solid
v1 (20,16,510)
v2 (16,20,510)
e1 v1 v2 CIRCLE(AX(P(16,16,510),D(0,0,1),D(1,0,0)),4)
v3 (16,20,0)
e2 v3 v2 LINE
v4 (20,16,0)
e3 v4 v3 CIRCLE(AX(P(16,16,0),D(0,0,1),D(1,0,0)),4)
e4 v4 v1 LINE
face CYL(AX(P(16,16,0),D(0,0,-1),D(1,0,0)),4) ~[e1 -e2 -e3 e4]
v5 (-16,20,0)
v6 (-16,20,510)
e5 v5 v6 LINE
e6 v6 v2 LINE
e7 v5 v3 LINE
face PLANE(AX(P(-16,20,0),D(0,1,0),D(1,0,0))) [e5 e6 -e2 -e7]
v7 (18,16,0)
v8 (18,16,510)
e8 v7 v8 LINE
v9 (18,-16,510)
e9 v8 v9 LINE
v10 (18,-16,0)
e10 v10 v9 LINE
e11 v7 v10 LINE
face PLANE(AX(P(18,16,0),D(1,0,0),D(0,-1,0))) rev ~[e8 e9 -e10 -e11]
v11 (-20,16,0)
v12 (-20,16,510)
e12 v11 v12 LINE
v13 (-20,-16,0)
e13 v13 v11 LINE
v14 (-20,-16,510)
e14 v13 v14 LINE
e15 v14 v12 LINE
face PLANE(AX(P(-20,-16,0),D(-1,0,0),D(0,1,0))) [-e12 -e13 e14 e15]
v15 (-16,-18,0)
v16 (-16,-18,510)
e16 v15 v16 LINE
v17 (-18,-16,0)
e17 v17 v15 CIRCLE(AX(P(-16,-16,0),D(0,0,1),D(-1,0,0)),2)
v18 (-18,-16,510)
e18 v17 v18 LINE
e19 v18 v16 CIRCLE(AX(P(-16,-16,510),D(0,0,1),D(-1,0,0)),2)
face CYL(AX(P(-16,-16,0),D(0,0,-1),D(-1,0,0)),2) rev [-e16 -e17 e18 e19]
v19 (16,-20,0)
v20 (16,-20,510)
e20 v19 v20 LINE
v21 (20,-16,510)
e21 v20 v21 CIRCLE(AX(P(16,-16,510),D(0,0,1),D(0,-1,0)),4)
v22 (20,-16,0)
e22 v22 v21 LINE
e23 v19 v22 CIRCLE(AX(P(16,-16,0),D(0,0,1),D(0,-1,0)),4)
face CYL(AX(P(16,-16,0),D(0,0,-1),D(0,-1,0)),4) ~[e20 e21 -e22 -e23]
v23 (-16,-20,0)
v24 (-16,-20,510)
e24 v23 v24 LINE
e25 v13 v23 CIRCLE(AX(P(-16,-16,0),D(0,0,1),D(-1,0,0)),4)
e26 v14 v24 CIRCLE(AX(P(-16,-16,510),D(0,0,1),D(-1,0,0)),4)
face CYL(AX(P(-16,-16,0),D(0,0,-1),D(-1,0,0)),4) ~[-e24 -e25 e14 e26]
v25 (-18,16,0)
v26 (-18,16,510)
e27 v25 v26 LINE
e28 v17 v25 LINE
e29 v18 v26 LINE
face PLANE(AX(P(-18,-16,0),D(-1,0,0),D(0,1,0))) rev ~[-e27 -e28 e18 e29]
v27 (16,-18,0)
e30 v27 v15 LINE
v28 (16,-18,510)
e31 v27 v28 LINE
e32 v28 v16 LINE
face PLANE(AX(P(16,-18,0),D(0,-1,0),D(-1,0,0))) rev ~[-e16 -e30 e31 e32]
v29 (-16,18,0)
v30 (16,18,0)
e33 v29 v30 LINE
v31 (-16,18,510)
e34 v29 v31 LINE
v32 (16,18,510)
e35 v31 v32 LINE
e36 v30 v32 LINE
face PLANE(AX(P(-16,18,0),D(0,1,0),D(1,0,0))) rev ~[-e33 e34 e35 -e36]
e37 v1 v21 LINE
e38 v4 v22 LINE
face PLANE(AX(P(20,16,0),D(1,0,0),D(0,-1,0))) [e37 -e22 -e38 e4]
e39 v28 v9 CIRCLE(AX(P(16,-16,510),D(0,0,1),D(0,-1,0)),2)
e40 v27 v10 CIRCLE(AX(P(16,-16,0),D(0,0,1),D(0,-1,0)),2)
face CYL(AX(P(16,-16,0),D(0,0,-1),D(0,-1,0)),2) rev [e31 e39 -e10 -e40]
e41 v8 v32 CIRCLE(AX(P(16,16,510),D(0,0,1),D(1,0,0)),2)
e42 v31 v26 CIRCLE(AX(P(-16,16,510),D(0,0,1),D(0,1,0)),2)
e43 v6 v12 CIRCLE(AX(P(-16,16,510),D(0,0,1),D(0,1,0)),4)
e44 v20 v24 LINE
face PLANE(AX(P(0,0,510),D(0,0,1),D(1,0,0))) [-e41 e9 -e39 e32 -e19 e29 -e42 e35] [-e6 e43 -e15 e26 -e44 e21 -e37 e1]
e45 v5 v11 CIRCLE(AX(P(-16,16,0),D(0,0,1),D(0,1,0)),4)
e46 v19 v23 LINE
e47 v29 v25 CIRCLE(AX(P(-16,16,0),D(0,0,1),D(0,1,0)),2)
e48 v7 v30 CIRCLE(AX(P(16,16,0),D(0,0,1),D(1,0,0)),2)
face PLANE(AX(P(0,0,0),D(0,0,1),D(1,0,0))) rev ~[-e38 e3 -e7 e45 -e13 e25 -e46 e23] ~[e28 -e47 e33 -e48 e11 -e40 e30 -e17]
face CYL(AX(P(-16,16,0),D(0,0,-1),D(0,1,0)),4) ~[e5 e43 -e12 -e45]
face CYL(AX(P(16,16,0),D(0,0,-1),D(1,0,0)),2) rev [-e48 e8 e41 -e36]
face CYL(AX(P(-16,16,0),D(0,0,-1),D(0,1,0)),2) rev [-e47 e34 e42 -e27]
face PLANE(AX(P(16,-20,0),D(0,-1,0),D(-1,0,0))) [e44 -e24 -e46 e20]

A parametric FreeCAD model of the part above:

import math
import FreeCAD as App
import Part
import Sketcher

doc = App.newDocument("Part")
params = doc.addObject("Spreadsheet::Sheet", "Params")
for row, (alias, value) in enumerate([
    ("sketch1_radius", "4 mm"),
    ("sketch1_radius2", "2 mm"),
    ("pad1_length", "510 mm"),
], start=1):
    params.set(f"A{row}", alias)
    params.set(f"B{row}", "=" + value)
    params.setAlias(f"B{row}", alias)

body = doc.addObject("PartDesign::Body", "Body")

# Sketch on XY plane
sketch1 = doc.addObject("Sketcher::SketchObject", "Sketch")
body.addObject(sketch1)
sketch1.AttachmentSupport = (doc.XY_Plane, [""])
sketch1.MapMode = "FlatFace"
sketch1.addGeometry(Part.LineSegment(App.Vector(-20, 16, 0), App.Vector(-20, -16, 0)), False)
sketch1.addGeometry(Part.ArcOfCircle(Part.Circle(App.Vector(-16, -16, 0), App.Vector(0, 0, 1), 4), math.radians(180), math.radians(270)), False)
sketch1.addGeometry(Part.LineSegment(App.Vector(-16, -20, 0), App.Vector(16, -20, 0)), False)
sketch1.addGeometry(Part.ArcOfCircle(Part.Circle(App.Vector(16, -16, 0), App.Vector(0, 0, 1), 4), math.radians(-90), math.radians(0)), False)
sketch1.addGeometry(Part.LineSegment(App.Vector(20, -16, 0), App.Vector(20, 16, 0)), False)
sketch1.addGeometry(Part.ArcOfCircle(Part.Circle(App.Vector(16, 16, 0), App.Vector(0, 0, 1), 4), math.radians(0), math.radians(90)), False)
sketch1.addGeometry(Part.LineSegment(App.Vector(16, 20, 0), App.Vector(-16, 20, 0)), False)
sketch1.addGeometry(Part.ArcOfCircle(Part.Circle(App.Vector(-16, 16, 0), App.Vector(0, 0, 1), 4), math.radians(90), math.radians(180)), False)
sketch1.addGeometry(Part.ArcOfCircle(Part.Circle(App.Vector(-16, 16, 0), App.Vector(0, 0, 1), 2), math.radians(90), math.radians(180)), False)
sketch1.addGeometry(Part.LineSegment(App.Vector(-16, 18, 0), App.Vector(16, 18, 0)), False)
sketch1.addGeometry(Part.ArcOfCircle(Part.Circle(App.Vector(16, 16, 0), App.Vector(0, 0, 1), 2), math.radians(0), math.radians(90)), False)
sketch1.addGeometry(Part.LineSegment(App.Vector(18, 16, 0), App.Vector(18, -16, 0)), False)
sketch1.addGeometry(Part.ArcOfCircle(Part.Circle(App.Vector(16, -16, 0), App.Vector(0, 0, 1), 2), math.radians(-90), math.radians(0)), False)
sketch1.addGeometry(Part.LineSegment(App.Vector(16, -18, 0), App.Vector(-16, -18, 0)), False)
sketch1.addGeometry(Part.ArcOfCircle(Part.Circle(App.Vector(-16, -16, 0), App.Vector(0, 0, 1), 2), math.radians(180), math.radians(270)), False)
sketch1.addGeometry(Part.LineSegment(App.Vector(-18, -16, 0), App.Vector(-18, 16, 0)), False)
sketch1.addConstraint(Sketcher.Constraint("Tangent", 0, 2, 1, 1))
sketch1.addConstraint(Sketcher.Constraint("Tangent", 1, 2, 2, 1))
sketch1.addConstraint(Sketcher.Constraint("Tangent", 2, 2, 3, 1))
sketch1.addConstraint(Sketcher.Constraint("Tangent", 3, 2, 4, 1))
sketch1.addConstraint(Sketcher.Constraint("Tangent", 4, 2, 5, 1))
sketch1.addConstraint(Sketcher.Constraint("Tangent", 5, 2, 6, 1))
sketch1.addConstraint(Sketcher.Constraint("Tangent", 6, 2, 7, 1))
sketch1.addConstraint(Sketcher.Constraint("Tangent", 7, 2, 0, 1))
sketch1.addConstraint(Sketcher.Constraint("Tangent", 8, 1, 9, 1))
sketch1.addConstraint(Sketcher.Constraint("Tangent", 9, 2, 10, 2))
sketch1.addConstraint(Sketcher.Constraint("Tangent", 10, 1, 11, 1))
sketch1.addConstraint(Sketcher.Constraint("Tangent", 11, 2, 12, 2))
sketch1.addConstraint(Sketcher.Constraint("Tangent", 12, 1, 13, 1))
sketch1.addConstraint(Sketcher.Constraint("Tangent", 13, 2, 14, 2))
sketch1.addConstraint(Sketcher.Constraint("Tangent", 14, 1, 15, 1))
sketch1.addConstraint(Sketcher.Constraint("Tangent", 15, 2, 8, 2))
sketch1.addConstraint(Sketcher.Constraint("Vertical", 0))
sketch1.addConstraint(Sketcher.Constraint("Horizontal", 2))
sketch1.addConstraint(Sketcher.Constraint("Vertical", 4))
sketch1.addConstraint(Sketcher.Constraint("Horizontal", 6))
sketch1.addConstraint(Sketcher.Constraint("Horizontal", 9))
sketch1.addConstraint(Sketcher.Constraint("Vertical", 11))
sketch1.addConstraint(Sketcher.Constraint("Horizontal", 13))
sketch1.addConstraint(Sketcher.Constraint("Vertical", 15))
sketch1.addConstraint(Sketcher.Constraint("Coincident", 8, 3, 7, 3))
sketch1.addConstraint(Sketcher.Constraint("Coincident", 10, 3, 5, 3))
sketch1.addConstraint(Sketcher.Constraint("Coincident", 12, 3, 3, 3))
sketch1.addConstraint(Sketcher.Constraint("Equal", 1, 3))
sketch1.addConstraint(Sketcher.Constraint("Equal", 3, 5))
sketch1.addConstraint(Sketcher.Constraint("Equal", 5, 7))
sketch1.addConstraint(Sketcher.Constraint("Equal", 12, 14))
sketch1.addConstraint(Sketcher.Constraint("Symmetric", 1, 3, 5, 3, -1, 1))
sketch1.addConstraint(Sketcher.Constraint("Equal", 13, 0))
sketch1.addConstraint(Sketcher.Constraint("Radius", 1, 4.0))
sketch1.addConstraint(Sketcher.Constraint("Radius", 8, 2.0))
sketch1.addConstraint(Sketcher.Constraint("DistanceX", 0, 2, -1, 1, 20.0))
sketch1.setExpression("Constraints[33]", "Params.sketch1_radius")
sketch1.setExpression("Constraints[34]", "Params.sketch1_radius2")
pad1 = doc.addObject("PartDesign::Pad", "Pad")
body.addObject(pad1)
pad1.Profile = sketch1
pad1.setExpression("Length", "Params.pad1_length")

doc.recompute()
